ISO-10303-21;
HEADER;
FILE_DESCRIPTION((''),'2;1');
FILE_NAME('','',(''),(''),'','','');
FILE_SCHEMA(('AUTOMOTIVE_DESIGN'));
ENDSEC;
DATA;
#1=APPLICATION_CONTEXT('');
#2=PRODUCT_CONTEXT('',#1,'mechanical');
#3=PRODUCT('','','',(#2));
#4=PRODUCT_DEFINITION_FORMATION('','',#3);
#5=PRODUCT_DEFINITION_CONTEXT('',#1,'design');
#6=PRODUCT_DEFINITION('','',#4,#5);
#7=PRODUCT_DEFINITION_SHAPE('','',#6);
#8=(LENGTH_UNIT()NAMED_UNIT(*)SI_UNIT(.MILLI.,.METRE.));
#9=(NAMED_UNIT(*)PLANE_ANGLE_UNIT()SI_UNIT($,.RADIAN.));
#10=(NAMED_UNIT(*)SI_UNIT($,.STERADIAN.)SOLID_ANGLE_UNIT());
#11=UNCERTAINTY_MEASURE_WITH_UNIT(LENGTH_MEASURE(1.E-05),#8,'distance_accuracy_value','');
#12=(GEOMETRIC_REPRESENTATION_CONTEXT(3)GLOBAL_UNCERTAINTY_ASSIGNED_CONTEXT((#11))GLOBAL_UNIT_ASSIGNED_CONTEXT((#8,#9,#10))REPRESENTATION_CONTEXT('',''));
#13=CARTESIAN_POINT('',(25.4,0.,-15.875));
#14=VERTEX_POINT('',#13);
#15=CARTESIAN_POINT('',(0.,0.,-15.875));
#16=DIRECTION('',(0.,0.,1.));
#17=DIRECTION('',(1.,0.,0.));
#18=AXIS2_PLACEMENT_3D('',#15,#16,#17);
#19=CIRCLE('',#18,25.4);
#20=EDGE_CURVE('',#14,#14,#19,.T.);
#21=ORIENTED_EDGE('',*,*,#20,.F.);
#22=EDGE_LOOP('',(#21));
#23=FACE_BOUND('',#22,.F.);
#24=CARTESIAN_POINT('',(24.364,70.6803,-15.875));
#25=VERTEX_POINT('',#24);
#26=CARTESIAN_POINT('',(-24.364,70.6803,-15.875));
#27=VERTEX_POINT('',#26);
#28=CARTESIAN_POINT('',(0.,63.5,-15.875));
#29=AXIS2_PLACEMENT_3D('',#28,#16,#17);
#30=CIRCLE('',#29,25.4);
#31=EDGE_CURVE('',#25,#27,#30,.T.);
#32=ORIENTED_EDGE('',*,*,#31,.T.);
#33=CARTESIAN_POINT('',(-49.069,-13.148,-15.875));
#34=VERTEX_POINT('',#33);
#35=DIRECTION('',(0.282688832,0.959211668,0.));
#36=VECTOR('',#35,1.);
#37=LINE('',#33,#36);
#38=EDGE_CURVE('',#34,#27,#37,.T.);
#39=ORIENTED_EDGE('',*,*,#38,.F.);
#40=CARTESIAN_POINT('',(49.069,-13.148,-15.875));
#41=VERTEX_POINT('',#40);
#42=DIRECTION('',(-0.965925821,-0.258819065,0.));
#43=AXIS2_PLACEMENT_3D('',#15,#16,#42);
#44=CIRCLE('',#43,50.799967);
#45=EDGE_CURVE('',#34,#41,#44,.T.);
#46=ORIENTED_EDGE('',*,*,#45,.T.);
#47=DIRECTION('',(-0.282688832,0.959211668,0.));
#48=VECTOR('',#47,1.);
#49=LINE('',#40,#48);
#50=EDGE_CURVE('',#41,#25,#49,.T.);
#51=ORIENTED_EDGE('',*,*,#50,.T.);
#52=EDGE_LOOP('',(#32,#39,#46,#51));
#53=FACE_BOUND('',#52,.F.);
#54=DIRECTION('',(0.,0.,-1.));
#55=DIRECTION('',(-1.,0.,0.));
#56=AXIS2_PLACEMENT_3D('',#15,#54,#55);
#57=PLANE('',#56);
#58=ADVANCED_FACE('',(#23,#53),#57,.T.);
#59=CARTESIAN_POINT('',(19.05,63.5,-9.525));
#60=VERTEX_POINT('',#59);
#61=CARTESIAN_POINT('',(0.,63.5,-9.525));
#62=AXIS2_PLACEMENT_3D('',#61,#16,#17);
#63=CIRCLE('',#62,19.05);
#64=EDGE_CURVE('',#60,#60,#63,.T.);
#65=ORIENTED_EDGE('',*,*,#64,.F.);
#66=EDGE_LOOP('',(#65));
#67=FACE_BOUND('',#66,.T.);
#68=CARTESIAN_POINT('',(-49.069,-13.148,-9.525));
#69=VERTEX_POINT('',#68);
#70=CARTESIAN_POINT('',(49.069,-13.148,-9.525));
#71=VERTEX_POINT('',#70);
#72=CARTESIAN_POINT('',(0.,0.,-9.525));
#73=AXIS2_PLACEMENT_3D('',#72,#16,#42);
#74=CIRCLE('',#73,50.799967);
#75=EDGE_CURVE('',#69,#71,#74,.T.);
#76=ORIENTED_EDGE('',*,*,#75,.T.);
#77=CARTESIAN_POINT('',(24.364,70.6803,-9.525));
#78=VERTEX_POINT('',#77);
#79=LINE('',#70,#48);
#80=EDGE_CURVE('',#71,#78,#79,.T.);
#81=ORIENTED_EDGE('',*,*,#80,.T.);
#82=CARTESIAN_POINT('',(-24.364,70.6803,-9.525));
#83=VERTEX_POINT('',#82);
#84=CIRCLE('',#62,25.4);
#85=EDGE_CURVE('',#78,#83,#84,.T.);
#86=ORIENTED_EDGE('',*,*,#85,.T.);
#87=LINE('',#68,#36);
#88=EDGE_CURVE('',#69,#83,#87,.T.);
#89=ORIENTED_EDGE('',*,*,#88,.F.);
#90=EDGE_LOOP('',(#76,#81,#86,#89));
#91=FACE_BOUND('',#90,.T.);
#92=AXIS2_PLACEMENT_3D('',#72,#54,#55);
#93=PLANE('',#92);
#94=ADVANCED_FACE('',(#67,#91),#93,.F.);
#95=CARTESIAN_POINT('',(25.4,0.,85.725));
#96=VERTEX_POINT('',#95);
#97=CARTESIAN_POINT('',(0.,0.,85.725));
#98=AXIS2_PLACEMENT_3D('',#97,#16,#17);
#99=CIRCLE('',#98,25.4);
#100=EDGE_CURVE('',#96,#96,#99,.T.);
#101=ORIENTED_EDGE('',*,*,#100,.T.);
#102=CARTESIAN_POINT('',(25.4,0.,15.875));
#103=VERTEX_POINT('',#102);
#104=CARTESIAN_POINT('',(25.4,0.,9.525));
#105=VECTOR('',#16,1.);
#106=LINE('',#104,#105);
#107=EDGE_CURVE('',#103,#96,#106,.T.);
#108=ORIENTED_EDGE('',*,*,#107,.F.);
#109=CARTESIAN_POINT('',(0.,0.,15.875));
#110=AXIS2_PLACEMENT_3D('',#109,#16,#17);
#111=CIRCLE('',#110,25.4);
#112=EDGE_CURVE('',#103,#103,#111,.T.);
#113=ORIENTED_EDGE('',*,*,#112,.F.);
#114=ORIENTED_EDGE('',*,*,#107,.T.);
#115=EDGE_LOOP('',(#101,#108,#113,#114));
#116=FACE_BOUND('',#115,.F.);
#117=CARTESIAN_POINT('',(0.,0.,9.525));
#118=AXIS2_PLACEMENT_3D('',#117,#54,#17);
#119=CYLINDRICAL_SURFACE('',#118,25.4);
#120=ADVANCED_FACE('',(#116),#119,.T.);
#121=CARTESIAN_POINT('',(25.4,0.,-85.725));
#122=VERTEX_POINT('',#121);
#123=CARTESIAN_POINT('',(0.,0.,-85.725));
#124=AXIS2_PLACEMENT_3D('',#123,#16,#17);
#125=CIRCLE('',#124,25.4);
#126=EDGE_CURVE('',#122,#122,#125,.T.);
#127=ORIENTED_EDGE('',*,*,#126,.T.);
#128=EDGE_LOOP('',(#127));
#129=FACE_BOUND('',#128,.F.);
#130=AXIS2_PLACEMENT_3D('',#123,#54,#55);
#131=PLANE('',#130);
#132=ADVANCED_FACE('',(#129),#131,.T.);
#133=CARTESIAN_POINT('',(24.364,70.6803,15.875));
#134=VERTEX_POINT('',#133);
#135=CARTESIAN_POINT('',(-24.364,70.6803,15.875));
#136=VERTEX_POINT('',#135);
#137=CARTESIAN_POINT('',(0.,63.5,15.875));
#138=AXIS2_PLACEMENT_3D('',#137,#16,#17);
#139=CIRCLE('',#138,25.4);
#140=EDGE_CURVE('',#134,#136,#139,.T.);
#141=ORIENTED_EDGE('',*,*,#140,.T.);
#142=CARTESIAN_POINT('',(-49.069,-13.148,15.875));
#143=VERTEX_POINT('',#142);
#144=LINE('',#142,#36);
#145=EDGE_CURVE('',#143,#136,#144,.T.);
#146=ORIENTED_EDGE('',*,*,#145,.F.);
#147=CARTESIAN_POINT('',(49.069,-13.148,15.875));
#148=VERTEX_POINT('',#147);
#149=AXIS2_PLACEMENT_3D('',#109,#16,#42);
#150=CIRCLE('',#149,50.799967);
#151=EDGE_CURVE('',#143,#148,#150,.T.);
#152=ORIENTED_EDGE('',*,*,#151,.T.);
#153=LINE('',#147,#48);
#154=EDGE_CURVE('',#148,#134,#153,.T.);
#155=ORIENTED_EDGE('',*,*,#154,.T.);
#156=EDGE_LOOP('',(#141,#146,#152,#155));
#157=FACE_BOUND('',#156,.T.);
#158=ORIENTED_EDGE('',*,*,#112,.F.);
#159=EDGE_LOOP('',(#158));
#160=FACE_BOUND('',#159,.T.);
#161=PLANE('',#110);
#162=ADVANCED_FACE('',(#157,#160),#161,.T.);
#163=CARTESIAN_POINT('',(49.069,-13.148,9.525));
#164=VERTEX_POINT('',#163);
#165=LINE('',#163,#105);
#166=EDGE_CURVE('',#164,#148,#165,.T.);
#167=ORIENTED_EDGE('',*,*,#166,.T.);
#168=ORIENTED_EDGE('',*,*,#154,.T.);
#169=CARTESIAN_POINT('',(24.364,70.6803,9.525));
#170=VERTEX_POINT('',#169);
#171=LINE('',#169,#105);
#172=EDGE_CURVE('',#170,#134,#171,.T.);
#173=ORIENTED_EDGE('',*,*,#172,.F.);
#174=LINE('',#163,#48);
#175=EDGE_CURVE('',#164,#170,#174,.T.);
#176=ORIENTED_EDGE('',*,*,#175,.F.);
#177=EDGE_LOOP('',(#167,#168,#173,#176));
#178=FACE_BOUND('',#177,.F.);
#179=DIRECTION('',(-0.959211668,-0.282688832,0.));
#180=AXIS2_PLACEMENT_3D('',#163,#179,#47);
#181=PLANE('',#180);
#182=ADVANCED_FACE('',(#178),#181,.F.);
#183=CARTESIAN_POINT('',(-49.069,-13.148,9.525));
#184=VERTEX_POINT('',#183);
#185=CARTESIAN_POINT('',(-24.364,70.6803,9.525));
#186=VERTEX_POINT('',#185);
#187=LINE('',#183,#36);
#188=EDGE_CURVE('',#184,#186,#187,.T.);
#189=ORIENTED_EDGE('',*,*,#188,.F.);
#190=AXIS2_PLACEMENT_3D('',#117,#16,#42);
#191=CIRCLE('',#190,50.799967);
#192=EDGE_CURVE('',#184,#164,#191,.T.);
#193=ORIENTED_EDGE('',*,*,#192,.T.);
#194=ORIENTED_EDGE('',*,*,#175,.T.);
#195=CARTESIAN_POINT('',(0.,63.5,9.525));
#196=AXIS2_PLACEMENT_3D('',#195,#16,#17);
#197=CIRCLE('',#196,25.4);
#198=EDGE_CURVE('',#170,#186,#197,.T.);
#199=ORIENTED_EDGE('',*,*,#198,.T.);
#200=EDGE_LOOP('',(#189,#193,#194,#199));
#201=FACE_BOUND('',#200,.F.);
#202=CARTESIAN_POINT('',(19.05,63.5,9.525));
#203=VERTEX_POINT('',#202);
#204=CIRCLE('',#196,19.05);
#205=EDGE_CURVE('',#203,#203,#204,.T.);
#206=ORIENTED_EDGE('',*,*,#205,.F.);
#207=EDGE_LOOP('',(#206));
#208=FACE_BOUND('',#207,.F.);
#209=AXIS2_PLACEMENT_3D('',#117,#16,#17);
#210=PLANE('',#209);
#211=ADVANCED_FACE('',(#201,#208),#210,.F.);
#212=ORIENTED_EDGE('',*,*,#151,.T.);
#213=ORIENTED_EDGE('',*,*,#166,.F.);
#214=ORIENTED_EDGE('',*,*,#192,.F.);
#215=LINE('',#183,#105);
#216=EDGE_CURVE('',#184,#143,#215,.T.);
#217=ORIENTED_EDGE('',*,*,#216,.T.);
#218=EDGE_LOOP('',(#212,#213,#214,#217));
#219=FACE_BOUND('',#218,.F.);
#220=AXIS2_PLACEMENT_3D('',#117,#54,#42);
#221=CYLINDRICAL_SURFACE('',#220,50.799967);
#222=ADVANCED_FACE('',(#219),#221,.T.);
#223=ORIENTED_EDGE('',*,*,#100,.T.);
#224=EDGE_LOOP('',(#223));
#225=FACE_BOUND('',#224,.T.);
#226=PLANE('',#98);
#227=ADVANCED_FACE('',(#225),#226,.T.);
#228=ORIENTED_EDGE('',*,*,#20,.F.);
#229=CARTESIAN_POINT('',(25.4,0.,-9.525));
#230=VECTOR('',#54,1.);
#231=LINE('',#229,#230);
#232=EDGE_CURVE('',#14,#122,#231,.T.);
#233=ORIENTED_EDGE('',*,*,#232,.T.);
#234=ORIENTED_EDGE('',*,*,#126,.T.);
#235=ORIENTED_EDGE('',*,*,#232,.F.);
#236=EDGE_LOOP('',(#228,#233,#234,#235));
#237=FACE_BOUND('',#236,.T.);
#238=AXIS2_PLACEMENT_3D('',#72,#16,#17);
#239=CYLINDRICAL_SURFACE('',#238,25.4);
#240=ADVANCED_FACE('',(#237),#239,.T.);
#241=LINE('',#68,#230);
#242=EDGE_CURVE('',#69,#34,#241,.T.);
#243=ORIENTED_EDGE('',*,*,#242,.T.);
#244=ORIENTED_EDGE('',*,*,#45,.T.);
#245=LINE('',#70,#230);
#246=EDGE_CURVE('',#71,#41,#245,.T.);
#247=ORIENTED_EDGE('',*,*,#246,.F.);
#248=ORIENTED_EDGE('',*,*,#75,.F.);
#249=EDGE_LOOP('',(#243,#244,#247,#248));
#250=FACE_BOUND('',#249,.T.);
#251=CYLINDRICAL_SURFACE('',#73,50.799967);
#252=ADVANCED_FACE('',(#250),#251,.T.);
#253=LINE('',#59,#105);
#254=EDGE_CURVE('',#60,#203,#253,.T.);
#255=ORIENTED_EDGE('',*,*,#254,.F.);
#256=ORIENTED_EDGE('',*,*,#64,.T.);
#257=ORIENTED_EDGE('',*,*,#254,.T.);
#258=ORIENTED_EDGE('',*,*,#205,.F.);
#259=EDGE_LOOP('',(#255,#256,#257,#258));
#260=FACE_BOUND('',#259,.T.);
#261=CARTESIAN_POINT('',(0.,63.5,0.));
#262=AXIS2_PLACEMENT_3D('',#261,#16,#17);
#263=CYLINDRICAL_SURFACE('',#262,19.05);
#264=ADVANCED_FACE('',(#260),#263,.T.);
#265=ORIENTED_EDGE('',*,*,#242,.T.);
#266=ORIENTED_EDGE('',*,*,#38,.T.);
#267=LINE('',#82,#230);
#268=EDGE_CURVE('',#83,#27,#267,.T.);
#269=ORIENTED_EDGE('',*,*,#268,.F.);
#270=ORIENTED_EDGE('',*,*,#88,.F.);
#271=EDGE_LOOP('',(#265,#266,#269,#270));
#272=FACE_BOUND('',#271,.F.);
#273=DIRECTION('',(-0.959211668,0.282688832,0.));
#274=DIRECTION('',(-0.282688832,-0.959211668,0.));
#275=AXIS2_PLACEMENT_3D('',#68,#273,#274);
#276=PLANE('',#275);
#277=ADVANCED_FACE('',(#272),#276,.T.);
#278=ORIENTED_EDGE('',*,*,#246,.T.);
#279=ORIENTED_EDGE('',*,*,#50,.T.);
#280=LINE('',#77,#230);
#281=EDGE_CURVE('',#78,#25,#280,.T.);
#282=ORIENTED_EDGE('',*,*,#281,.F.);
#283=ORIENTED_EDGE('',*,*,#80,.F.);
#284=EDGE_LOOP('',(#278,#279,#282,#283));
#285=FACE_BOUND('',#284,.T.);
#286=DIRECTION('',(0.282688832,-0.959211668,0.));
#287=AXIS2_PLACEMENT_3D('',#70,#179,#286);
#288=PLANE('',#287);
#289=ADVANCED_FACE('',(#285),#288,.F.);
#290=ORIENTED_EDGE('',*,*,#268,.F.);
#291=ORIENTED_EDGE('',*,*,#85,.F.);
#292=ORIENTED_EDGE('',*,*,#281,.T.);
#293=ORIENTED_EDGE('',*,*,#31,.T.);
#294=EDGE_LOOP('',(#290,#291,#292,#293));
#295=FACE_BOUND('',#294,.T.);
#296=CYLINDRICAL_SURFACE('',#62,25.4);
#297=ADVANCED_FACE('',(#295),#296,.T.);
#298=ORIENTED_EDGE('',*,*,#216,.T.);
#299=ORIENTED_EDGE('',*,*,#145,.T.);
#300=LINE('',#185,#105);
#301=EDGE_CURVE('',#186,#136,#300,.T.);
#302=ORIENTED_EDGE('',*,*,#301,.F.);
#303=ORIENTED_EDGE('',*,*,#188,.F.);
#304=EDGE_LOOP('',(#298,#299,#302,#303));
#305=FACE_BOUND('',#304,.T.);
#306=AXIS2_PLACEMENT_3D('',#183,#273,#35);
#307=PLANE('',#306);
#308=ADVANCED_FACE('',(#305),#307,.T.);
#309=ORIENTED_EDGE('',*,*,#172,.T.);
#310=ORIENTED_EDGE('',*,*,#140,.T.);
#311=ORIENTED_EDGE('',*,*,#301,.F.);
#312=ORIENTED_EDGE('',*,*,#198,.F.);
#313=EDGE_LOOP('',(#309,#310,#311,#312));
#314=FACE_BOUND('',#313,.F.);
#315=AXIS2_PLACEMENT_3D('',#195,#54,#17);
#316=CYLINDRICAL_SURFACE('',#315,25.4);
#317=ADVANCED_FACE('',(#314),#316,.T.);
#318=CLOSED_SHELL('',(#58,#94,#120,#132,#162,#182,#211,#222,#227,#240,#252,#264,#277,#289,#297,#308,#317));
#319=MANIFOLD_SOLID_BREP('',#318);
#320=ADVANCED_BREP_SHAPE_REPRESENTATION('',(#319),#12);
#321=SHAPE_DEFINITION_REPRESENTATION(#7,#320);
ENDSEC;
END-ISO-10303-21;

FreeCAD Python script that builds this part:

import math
import FreeCAD as App
import Part
import Sketcher

V = App.Vector
Q = App.Units.Quantity

doc = App.newDocument("Part")
body = doc.addObject("PartDesign::Body", "Body")

sketch1 = body.newObject("Sketcher::SketchObject", "Sketch")
sketch1.AttachmentSupport = (doc.getObject("XY_Plane"), [""])
sketch1.MapMode = "FlatFace"
sketch1.addGeometry(Part.Circle(V(0, 63.5, 0), V(0, 0, 1), 19.05), False)
sketch1.addConstraint(Sketcher.Constraint("PointOnObject", 0, 3, -2))
sketch1.addConstraint(Sketcher.Constraint("Diameter", 0, Q("1.5 in")))
sketch1.addConstraint(Sketcher.Constraint("DistanceY", -1, 1, 0, 3, Q("2.5 in")))
pad1 = body.newObject("PartDesign::Pad", "Pad")
pad1.Profile = sketch1
pad1.Length = Q("0.375 in")

sketch2 = body.newObject("Sketcher::SketchObject", "Sketch001")
sketch2.AttachmentSupport = (doc.getObject("XY_Plane"), [""])
sketch2.MapMode = "FlatFace"
sketch2.AttachmentOffset = App.Placement(V(0, 0, 0.375 * 25.4), App.Rotation())
sketch2.addGeometry(Part.ArcOfCircle(Part.Circle(V(0, 63.5, 0), V(0, 0, 1), 25.4), math.radians(16.420741), math.radians(163.579259)), False)
sketch2.addGeometry(Part.LineSegment(V(-24.364, 70.6803, 0), V(-49.069, -13.148, 0)), False)
sketch2.addGeometry(Part.ArcOfCircle(Part.Circle(V(0, 0, 0), V(0, 0, 1), 50.799967), math.radians(-164.999999), math.radians(-15.000001)), False)
sketch2.addGeometry(Part.LineSegment(V(49.069, -13.148, 0), V(24.364, 70.6803, 0)), False)
sketch2.addGeometry(Part.Circle(V(0, 0, 0), V(0, 0, 1), 25.4), False)
sketch2.addConstraint(Sketcher.Constraint("Tangent", 0, 2, 1, 1))
sketch2.addConstraint(Sketcher.Constraint("Coincident", 1, 2, 2, 1))
sketch2.addConstraint(Sketcher.Constraint("Coincident", 2, 2, 3, 1))
sketch2.addConstraint(Sketcher.Constraint("Tangent", 3, 2, 0, 1))
sketch2.addConstraint(Sketcher.Constraint("Coincident", 2, 3, -1, 1))
sketch2.addConstraint(Sketcher.Constraint("Coincident", 4, 3, -1, 1))
sketch2.addConstraint(Sketcher.Constraint("Equal", 0, 4))
sketch2.addConstraint(Sketcher.Constraint("Symmetric", 0, 2, 3, 2, -2))
sketch2.addConstraint(Sketcher.Constraint("Diameter", 4, Q("2 in")))
sketch2.addConstraint(Sketcher.Constraint("Radius", 2, Q("2 in")))
sketch2.addConstraint(Sketcher.Constraint("DistanceY", -1, 1, 0, 3, Q("2.5 in")))
sketch2.addConstraint(Sketcher.Constraint("Angle", 1, Q("-106.4207 deg")))
pad2 = body.newObject("PartDesign::Pad", "Pad001")
pad2.Profile = sketch2
pad2.Length = Q("0.25 in")

sketch3 = body.newObject("Sketcher::SketchObject", "Sketch002")
sketch3.AttachmentSupport = (doc.getObject("XY_Plane"), [""])
sketch3.MapMode = "FlatFace"
sketch3.AttachmentOffset = App.Placement(V(0, 0, 0.375 * 25.4), App.Rotation())
sketch3.addGeometry(Part.Circle(V(0, 0, 0), V(0, 0, 1), 25.4), False)
sketch3.addConstraint(Sketcher.Constraint("Coincident", 0, 3, -1, 1))
sketch3.addConstraint(Sketcher.Constraint("Diameter", 0, Q("2 in")))
pad3 = body.newObject("PartDesign::Pad", "Pad002")
pad3.Profile = sketch3
pad3.Length = Q("3 in")
doc.recompute()

mirrored = body.newObject("PartDesign::Mirrored", "Mirrored")
mirrored.Originals = [pad1, pad2, pad3]
mirrored.MirrorPlane = (doc.getObject("XY_Plane"), [""])
body.Tip = mirrored

doc.recompute()
